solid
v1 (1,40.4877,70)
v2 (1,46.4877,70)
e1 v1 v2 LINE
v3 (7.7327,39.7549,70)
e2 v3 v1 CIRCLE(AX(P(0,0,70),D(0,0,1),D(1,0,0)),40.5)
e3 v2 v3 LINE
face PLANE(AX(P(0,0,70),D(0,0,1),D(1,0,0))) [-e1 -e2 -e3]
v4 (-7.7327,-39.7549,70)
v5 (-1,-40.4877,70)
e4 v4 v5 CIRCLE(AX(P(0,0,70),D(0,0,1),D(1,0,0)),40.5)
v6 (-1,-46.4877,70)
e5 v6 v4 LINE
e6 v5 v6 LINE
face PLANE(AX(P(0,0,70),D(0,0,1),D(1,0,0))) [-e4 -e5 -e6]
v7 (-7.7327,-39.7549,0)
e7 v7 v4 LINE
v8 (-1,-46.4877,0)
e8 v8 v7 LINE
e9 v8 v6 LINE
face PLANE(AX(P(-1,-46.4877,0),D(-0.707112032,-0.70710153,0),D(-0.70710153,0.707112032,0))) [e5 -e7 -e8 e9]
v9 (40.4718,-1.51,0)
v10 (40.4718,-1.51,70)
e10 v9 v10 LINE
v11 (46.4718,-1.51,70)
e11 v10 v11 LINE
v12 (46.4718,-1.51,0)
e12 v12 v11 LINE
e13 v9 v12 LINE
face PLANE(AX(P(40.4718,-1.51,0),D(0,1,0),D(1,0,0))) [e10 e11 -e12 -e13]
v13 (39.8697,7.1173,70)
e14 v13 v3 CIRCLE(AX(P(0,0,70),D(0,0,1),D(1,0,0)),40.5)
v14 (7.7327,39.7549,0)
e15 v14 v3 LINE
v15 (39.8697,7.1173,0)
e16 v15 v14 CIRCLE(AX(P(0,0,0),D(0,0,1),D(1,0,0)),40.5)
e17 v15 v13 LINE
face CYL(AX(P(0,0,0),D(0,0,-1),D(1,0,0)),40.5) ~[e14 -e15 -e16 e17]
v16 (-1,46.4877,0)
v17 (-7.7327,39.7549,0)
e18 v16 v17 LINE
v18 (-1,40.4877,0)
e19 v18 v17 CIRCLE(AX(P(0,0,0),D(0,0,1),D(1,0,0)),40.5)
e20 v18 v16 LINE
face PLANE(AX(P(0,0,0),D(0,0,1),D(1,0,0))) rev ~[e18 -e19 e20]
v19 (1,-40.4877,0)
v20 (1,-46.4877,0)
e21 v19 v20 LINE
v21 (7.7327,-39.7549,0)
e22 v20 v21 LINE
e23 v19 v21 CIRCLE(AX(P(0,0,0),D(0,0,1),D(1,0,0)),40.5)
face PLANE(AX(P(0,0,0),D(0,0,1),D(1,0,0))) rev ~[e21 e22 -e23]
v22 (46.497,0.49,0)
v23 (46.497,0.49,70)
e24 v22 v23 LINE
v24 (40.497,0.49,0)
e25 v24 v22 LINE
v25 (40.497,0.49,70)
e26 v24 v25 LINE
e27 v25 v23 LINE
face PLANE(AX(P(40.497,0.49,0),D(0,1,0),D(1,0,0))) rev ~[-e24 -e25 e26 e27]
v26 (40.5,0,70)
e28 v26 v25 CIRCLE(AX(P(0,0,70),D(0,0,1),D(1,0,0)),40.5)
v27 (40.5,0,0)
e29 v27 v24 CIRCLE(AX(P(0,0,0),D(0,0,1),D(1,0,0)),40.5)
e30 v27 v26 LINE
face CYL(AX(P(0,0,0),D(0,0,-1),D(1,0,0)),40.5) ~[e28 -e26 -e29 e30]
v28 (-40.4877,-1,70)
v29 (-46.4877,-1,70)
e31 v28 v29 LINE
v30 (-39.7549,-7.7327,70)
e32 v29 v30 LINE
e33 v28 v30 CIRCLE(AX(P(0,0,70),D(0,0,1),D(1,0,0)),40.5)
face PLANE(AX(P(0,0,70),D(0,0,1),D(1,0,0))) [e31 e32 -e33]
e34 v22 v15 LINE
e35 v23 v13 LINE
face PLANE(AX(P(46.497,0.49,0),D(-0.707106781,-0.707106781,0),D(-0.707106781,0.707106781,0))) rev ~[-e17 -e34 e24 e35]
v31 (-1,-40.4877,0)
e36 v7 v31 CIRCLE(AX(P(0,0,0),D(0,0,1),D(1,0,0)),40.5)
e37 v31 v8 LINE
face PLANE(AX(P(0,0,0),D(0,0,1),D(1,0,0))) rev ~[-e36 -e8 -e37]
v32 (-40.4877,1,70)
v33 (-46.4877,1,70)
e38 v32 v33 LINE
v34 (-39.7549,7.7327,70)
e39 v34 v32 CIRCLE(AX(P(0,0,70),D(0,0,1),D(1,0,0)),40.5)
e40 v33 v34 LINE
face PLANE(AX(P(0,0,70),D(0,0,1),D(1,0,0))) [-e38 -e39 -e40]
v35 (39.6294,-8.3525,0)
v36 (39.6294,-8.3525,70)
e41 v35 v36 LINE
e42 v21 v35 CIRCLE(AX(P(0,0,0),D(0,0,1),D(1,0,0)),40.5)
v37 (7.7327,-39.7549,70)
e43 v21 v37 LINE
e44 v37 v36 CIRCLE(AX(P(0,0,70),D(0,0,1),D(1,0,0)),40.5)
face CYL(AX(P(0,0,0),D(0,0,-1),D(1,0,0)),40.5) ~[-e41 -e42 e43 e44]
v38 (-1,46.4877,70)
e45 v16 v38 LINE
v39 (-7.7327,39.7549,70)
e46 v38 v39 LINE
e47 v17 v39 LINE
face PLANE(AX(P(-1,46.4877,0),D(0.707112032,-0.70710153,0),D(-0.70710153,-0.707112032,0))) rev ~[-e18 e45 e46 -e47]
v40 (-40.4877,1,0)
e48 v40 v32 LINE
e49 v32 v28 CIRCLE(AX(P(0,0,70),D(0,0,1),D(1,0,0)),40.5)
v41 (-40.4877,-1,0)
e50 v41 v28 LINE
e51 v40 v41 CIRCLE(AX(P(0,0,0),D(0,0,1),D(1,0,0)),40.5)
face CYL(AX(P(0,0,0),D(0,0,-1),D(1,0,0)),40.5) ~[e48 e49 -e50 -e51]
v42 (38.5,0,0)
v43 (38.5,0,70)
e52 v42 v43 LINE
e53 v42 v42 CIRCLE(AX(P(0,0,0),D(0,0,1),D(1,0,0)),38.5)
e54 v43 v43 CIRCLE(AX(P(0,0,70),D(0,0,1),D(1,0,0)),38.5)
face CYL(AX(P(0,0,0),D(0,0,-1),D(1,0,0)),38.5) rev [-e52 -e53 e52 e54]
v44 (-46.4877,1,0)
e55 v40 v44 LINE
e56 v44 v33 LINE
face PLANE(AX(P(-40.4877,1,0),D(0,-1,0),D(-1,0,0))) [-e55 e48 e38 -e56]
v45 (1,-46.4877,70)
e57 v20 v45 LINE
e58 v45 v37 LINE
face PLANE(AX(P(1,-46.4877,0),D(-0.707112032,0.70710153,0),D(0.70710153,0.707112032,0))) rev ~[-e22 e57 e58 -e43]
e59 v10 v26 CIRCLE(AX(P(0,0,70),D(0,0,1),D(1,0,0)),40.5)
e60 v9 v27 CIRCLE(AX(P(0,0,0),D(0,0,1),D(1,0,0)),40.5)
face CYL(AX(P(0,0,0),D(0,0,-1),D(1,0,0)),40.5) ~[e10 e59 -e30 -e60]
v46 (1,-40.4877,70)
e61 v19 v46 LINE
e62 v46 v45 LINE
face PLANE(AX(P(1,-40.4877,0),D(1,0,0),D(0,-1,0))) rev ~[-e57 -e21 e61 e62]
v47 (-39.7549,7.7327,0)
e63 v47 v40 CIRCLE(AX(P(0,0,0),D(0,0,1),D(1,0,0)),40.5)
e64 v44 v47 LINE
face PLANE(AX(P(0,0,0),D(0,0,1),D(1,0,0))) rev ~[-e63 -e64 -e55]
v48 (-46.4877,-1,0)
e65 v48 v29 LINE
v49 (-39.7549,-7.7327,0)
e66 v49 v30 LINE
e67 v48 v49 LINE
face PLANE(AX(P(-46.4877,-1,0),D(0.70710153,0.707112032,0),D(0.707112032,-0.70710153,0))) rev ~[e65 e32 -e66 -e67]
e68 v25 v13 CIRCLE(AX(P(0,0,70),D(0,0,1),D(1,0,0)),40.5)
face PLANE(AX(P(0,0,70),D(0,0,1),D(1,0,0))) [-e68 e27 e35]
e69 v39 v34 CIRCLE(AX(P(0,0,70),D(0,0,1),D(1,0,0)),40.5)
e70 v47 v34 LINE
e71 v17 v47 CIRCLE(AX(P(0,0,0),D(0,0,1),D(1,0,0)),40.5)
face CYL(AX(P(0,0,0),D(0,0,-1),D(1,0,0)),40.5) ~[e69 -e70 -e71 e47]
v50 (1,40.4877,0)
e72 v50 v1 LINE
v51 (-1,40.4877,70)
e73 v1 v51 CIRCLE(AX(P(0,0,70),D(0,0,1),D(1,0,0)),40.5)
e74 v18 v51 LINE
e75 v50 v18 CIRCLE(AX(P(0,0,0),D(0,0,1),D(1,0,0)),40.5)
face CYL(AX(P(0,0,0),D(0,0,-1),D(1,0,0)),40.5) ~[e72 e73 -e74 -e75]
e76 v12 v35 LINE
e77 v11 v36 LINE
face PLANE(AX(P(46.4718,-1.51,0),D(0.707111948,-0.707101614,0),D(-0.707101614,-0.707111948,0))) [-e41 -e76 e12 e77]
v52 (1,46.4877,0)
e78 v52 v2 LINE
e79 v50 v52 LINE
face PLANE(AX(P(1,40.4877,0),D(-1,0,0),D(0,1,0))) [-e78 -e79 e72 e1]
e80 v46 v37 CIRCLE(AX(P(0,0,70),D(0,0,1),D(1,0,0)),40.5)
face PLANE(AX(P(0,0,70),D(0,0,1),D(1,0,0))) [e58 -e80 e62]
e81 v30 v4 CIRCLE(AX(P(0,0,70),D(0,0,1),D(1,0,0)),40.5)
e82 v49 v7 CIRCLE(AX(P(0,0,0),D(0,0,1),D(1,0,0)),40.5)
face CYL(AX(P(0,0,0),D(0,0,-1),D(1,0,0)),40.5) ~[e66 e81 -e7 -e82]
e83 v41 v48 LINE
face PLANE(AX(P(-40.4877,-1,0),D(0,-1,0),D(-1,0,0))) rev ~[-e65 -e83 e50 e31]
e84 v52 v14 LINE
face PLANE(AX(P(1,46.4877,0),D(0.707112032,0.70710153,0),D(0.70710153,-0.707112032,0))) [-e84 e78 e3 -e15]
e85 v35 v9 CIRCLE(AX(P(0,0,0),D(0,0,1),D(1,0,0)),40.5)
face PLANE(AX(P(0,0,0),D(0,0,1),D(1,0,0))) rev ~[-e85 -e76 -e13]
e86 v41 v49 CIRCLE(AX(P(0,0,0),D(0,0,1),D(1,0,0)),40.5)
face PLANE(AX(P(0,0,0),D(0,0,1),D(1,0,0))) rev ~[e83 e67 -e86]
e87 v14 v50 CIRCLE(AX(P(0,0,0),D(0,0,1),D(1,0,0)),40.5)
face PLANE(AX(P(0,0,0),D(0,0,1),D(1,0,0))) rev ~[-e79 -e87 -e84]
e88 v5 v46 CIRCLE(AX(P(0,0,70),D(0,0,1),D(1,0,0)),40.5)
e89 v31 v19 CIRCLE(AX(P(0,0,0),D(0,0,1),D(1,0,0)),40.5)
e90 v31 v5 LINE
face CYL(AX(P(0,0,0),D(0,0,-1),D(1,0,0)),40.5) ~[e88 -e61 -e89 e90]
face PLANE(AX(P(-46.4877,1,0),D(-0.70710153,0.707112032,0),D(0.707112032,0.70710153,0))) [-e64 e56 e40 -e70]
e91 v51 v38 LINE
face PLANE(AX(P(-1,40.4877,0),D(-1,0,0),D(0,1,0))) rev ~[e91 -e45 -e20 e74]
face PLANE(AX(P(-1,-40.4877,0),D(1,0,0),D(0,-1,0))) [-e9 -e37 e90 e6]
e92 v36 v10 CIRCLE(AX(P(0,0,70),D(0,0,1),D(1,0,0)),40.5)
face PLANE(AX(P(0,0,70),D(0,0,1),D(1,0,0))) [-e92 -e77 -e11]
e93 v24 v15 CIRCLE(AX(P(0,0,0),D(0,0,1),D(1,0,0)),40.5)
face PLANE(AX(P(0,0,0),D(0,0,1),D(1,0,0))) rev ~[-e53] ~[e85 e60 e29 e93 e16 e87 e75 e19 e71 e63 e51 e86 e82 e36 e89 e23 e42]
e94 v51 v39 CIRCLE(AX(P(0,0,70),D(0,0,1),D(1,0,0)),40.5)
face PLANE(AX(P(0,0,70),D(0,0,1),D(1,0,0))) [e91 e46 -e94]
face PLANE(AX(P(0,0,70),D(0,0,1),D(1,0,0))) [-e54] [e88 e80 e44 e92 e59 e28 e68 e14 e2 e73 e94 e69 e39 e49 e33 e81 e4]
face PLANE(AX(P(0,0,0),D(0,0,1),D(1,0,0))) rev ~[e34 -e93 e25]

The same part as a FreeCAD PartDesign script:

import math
import FreeCAD as App
import Part
import Sketcher

V = App.Vector
Q = App.Units.Quantity

doc = App.newDocument("Part")
body = doc.addObject("PartDesign::Body", "Body")

# Sketch on XY plane
sketch1 = body.newObject("Sketcher::SketchObject", "Sketch")
sketch1.AttachmentSupport = (doc.getObject("XY_Plane"), [""])
sketch1.MapMode = "FlatFace"
sketch1.addGeometry(Part.ArcOfCircle(Part.Circle(V(0, 0, 0), V(0, 0, 1), 40.5), math.radians(-2.14), math.radians(0.69)), False)
sketch1.addGeometry(Part.LineSegment(V(40.5, 0.5, 0), V(46.5, 0.5, 0)), False)
sketch1.addGeometry(Part.LineSegment(V(46.5, 0.5, 0), V(39.9, 7.1, 0)), False)
sketch1.addGeometry(Part.ArcOfCircle(Part.Circle(V(0, 0, 0), V(0, 0, 1), 40.5), math.radians(10), math.radians(79)), False)
sketch1.addGeometry(Part.LineSegment(V(7.7, 39.8, 0), V(1, 46.5, 0)), False)
sketch1.addGeometry(Part.LineSegment(V(1, 46.5, 0), V(1, 40.5, 0)), False)
sketch1.addGeometry(Part.ArcOfCircle(Part.Circle(V(0, 0, 0), V(0, 0, 1), 40.5), math.radians(88.59), math.radians(91.41)), False)
sketch1.addGeometry(Part.LineSegment(V(-1, 40.5, 0), V(-1, 46.5, 0)), False)
sketch1.addGeometry(Part.LineSegment(V(-1, 46.5, 0), V(-7.7, 39.8, 0)), False)
sketch1.addGeometry(Part.ArcOfCircle(Part.Circle(V(0, 0, 0), V(0, 0, 1), 40.5), math.radians(101), math.radians(169)), False)
sketch1.addGeometry(Part.LineSegment(V(-39.8, 7.7, 0), V(-46.5, 1, 0)), False)
sketch1.addGeometry(Part.LineSegment(V(-46.5, 1, 0), V(-40.5, 1, 0)), False)
sketch1.addGeometry(Part.ArcOfCircle(Part.Circle(V(0, 0, 0), V(0, 0, 1), 40.5), math.radians(178.59), math.radians(181.41)), False)
sketch1.addGeometry(Part.LineSegment(V(-40.5, -1, 0), V(-46.5, -1, 0)), False)
sketch1.addGeometry(Part.LineSegment(V(-46.5, -1, 0), V(-39.8, -7.7, 0)), False)
sketch1.addGeometry(Part.ArcOfCircle(Part.Circle(V(0, 0, 0), V(0, 0, 1), 40.5), math.radians(-169), math.radians(-101)), False)
sketch1.addGeometry(Part.LineSegment(V(-7.7, -39.8, 0), V(-1, -46.5, 0)), False)
sketch1.addGeometry(Part.LineSegment(V(-1, -46.5, 0), V(-1, -40.5, 0)), False)
sketch1.addGeometry(Part.ArcOfCircle(Part.Circle(V(0, 0, 0), V(0, 0, 1), 40.5), math.radians(-91.41), math.radians(-88.59)), False)
sketch1.addGeometry(Part.LineSegment(V(1, -40.5, 0), V(1, -46.5, 0)), False)
sketch1.addGeometry(Part.LineSegment(V(1, -46.5, 0), V(7.7, -39.8, 0)), False)
sketch1.addGeometry(Part.ArcOfCircle(Part.Circle(V(0, 0, 0), V(0, 0, 1), 40.5), math.radians(-79), math.radians(-12)), False)
sketch1.addGeometry(Part.LineSegment(V(39.6, -8.4, 0), V(46.5, -1.5, 0)), False)
sketch1.addGeometry(Part.LineSegment(V(46.5, -1.5, 0), V(40.5, -1.5, 0)), False)
sketch1.addGeometry(Part.Circle(V(0, 0, 0), V(0, 0, 1), 38.5), False)
sketch1.addConstraint(Sketcher.Constraint("Coincident", 0, 2, 1, 1))
sketch1.addConstraint(Sketcher.Constraint("Coincident", 1, 2, 2, 1))
sketch1.addConstraint(Sketcher.Constraint("Coincident", 2, 2, 3, 1))
sketch1.addConstraint(Sketcher.Constraint("Coincident", 3, 2, 4, 1))
sketch1.addConstraint(Sketcher.Constraint("Coincident", 4, 2, 5, 1))
sketch1.addConstraint(Sketcher.Constraint("Coincident", 5, 2, 6, 1))
sketch1.addConstraint(Sketcher.Constraint("Coincident", 6, 2, 7, 1))
sketch1.addConstraint(Sketcher.Constraint("Coincident", 7, 2, 8, 1))
sketch1.addConstraint(Sketcher.Constraint("Coincident", 8, 2, 9, 1))
sketch1.addConstraint(Sketcher.Constraint("Coincident", 9, 2, 10, 1))
sketch1.addConstraint(Sketcher.Constraint("Coincident", 10, 2, 11, 1))
sketch1.addConstraint(Sketcher.Constraint("Coincident", 11, 2, 12, 1))
sketch1.addConstraint(Sketcher.Constraint("Coincident", 12, 2, 13, 1))
sketch1.addConstraint(Sketcher.Constraint("Coincident", 13, 2, 14, 1))
sketch1.addConstraint(Sketcher.Constraint("Coincident", 14, 2, 15, 1))
sketch1.addConstraint(Sketcher.Constraint("Coincident", 15, 2, 16, 1))
sketch1.addConstraint(Sketcher.Constraint("Coincident", 16, 2, 17, 1))
sketch1.addConstraint(Sketcher.Constraint("Coincident", 17, 2, 18, 1))
sketch1.addConstraint(Sketcher.Constraint("Coincident", 18, 2, 19, 1))
sketch1.addConstraint(Sketcher.Constraint("Coincident", 19, 2, 20, 1))
sketch1.addConstraint(Sketcher.Constraint("Coincident", 20, 2, 21, 1))
sketch1.addConstraint(Sketcher.Constraint("Coincident", 21, 2, 22, 1))
sketch1.addConstraint(Sketcher.Constraint("Coincident", 22, 2, 23, 1))
sketch1.addConstraint(Sketcher.Constraint("Coincident", 23, 2, 0, 1))
sketch1.addConstraint(Sketcher.Constraint("Horizontal", 1))
sketch1.addConstraint(Sketcher.Constraint("Vertical", 5))
sketch1.addConstraint(Sketcher.Constraint("Vertical", 7))
sketch1.addConstraint(Sketcher.Constraint("Horizontal", 11))
sketch1.addConstraint(Sketcher.Constraint("Horizontal", 13))
sketch1.addConstraint(Sketcher.Constraint("Vertical", 17))
sketch1.addConstraint(Sketcher.Constraint("Vertical", 19))
sketch1.addConstraint(Sketcher.Constraint("Horizontal", 23))
sketch1.addConstraint(Sketcher.Constraint("Coincident", 0, 3, -1, 1))
sketch1.addConstraint(Sketcher.Constraint("Coincident", 3, 3, -1, 1))
sketch1.addConstraint(Sketcher.Constraint("Coincident", 6, 3, -1, 1))
sketch1.addConstraint(Sketcher.Constraint("Coincident", 9, 3, -1, 1))
sketch1.addConstraint(Sketcher.Constraint("Coincident", 12, 3, -1, 1))
sketch1.addConstraint(Sketcher.Constraint("Coincident", 15, 3, -1, 1))
sketch1.addConstraint(Sketcher.Constraint("Coincident", 18, 3, -1, 1))
sketch1.addConstraint(Sketcher.Constraint("Coincident", 21, 3, -1, 1))
sketch1.addConstraint(Sketcher.Constraint("Coincident", 24, 3, -1, 1))
sketch1.addConstraint(Sketcher.Constraint("Equal", 0, 3))
sketch1.addConstraint(Sketcher.Constraint("Equal", 3, 6))
sketch1.addConstraint(Sketcher.Constraint("Equal", 6, 9))
sketch1.addConstraint(Sketcher.Constraint("Equal", 9, 12))
sketch1.addConstraint(Sketcher.Constraint("Equal", 12, 15))
sketch1.addConstraint(Sketcher.Constraint("Equal", 15, 18))
sketch1.addConstraint(Sketcher.Constraint("Equal", 18, 21))
sketch1.addConstraint(Sketcher.Constraint("Symmetric", 4, 2, 16, 2, -1, 1))
sketch1.addConstraint(Sketcher.Constraint("Symmetric", 7, 2, 19, 2, -1, 1))
sketch1.addConstraint(Sketcher.Constraint("Symmetric", 4, 2, 7, 2, -2))
sketch1.addConstraint(Sketcher.Constraint("Symmetric", 10, 2, 13, 2, -1))
sketch1.addConstraint(Sketcher.Constraint("Parallel", 2, 4))
sketch1.addConstraint(Sketcher.Constraint("Perpendicular", 4, 8))
sketch1.addConstraint(Sketcher.Constraint("Parallel", 8, 10))
sketch1.addConstraint(Sketcher.Constraint("Perpendicular", 10, 14))
sketch1.addConstraint(Sketcher.Constraint("Parallel", 14, 16))
sketch1.addConstraint(Sketcher.Constraint("Perpendicular", 16, 20))
sketch1.addConstraint(Sketcher.Constraint("Parallel", 20, 22))
sketch1.addConstraint(Sketcher.Constraint("Horizontal", 3, 2, 8, 2))
sketch1.addConstraint(Sketcher.Constraint("Equal", 1, 11))
sketch1.addConstraint(Sketcher.Constraint("Equal", 13, 23))
sketch1.addConstraint(Sketcher.Constraint("Equal", 23, 5))
sketch1.addConstraint(Sketcher.Constraint("Equal", 8, 10))
sketch1.addConstraint(Sketcher.Constraint("Diameter", 24, Q("77 mm")))
sketch1.addConstraint(Sketcher.Constraint("Radius", 0, Q("40.5 mm")))
sketch1.addConstraint(Sketcher.Constraint("DistanceX", 1, 1, 1, 2, Q("6 mm")))
sketch1.addConstraint(Sketcher.Constraint("DistanceX", 6, 2, 5, 2, Q("2 mm")))
sketch1.addConstraint(Sketcher.Constraint("DistanceY", 22, 2, 1, 2, Q("2 mm")))
sketch1.addConstraint(Sketcher.Constraint("DistanceY", -1, 1, 0, 2, Q("0.49 mm")))
pad1 = body.newObject("PartDesign::Pad", "Pad")
pad1.Profile = sketch1
pad1.Length = 70

doc.recompute()
